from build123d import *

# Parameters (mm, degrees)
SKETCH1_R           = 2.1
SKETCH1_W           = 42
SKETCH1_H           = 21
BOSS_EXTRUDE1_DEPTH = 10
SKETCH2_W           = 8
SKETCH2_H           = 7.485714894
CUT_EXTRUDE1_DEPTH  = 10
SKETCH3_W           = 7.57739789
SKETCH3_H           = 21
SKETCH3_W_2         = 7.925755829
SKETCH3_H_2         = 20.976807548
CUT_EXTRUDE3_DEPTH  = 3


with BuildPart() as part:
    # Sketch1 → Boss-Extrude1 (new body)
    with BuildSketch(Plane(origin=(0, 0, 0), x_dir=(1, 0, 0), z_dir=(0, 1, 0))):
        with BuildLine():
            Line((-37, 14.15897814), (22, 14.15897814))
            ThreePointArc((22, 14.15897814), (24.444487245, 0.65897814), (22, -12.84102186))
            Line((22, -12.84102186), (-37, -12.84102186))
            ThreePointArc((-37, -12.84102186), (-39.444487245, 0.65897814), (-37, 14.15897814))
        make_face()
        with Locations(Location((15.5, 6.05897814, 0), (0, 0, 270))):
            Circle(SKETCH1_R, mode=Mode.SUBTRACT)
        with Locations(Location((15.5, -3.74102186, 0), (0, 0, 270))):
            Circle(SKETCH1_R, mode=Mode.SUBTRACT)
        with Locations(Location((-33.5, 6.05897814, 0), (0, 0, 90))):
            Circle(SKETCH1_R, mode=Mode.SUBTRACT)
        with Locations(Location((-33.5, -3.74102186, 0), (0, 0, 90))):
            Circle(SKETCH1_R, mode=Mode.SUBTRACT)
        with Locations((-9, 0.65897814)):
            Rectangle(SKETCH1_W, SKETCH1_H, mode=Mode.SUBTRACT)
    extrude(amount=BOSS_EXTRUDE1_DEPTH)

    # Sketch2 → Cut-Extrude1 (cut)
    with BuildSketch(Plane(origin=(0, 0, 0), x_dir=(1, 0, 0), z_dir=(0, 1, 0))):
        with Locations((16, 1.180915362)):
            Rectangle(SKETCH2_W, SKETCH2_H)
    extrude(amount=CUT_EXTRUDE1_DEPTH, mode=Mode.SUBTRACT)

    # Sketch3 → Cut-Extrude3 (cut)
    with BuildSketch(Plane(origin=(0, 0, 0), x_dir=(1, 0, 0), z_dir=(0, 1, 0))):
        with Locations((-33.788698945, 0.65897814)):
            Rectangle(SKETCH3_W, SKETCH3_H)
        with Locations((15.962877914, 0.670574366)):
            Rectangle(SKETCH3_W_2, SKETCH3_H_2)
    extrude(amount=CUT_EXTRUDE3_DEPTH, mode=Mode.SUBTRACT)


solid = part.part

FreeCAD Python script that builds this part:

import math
import FreeCAD as App
import Part
import Sketcher
Q = App.Units.Quantity


def add_polygon(sketch, points):
    """Adds a closed chain of lines whose ends are joined by coincident constraints."""
    first, n = sketch.GeometryCount, len(points)
    for a, b in zip(points, points[1:] + points[:1]):
        sketch.addGeometry(Part.LineSegment(App.Vector(*a, 0), App.Vector(*b, 0)), False)
    for i in range(n):
        sketch.addConstraint(Sketcher.Constraint("Coincident", first + i, 2, first + (i + 1) % n, 1))

doc = App.newDocument("Part")
params = doc.addObject("Spreadsheet::Sheet", "Params")
for row, (alias, value) in enumerate([
    ("sketch1_diameter", "4.2 mm"),
    ("sketch1_radius", "38.5 mm"),
    ("sketch1_width", "59 mm"),
    ("sketch1_width2", "42 mm"),
    ("sketch1_height", "21 mm"),
    ("pad1_length", "10 mm"),
    ("sketch2_width", "8 mm"),
    ("pocket1_length", "10 mm"),
    ("sketch3_height", "21 mm"),
    ("pocket2_length", "3 mm"),
], start=1):
    params.set(f"A{row}", alias)
    params.set(f"B{row}", "=" + value)
    params.setAlias(f"B{row}", alias)

body = doc.addObject("PartDesign::Body", "Body")

# Sketch on XZ plane
sketch1 = doc.addObject("Sketcher::SketchObject", "Sketch")
body.addObject(sketch1)
sketch1.AttachmentSupport = (doc.XZ_Plane, [""])
sketch1.MapMode = "FlatFace"
sketch1.addGeometry(Part.LineSegment(App.Vector(22, -14.2, 0), App.Vector(-37, -14.2, 0)), False)  # 0
sketch1.addGeometry(Part.ArcOfCircle(Part.Circle(App.Vector(-0.9, -0.7, 0), App.Vector(0, 0, 1), 38.5), math.radians(159), math.radians(201)), False)  # 1
sketch1.addGeometry(Part.LineSegment(App.Vector(-37, 12.8, 0), App.Vector(22, 12.8, 0)), False)  # 2
sketch1.addGeometry(Part.ArcOfCircle(Part.Circle(App.Vector(-14.1, -0.7, 0), App.Vector(0, 0, 1), 38.5), math.radians(-21), math.radians(21)), False)  # 3
sketch1.addGeometry(Part.Circle(App.Vector(15.5, 3.7, 0), App.Vector(0, 0, 1), 2.1), False)  # 4
sketch1.addGeometry(Part.Circle(App.Vector(-33.5, 3.7, 0), App.Vector(0, 0, 1), 2.1), False)  # 5
sketch1.addGeometry(Part.Circle(App.Vector(15.5, -6.1, 0), App.Vector(0, 0, 1), 2.1), False)  # 6
add_polygon(sketch1, [(-30, 9.8), (-30, -11.2), (12, -11.2), (12, 9.8)])  # lines 7-10
sketch1.addGeometry(Part.Circle(App.Vector(-33.5, -6.1, 0), App.Vector(0, 0, 1), 2.1), False)  # 11
sketch1.addConstraint(Sketcher.Constraint("Coincident", 0, 2, 1, 2))
sketch1.addConstraint(Sketcher.Constraint("Coincident", 1, 1, 2, 1))
sketch1.addConstraint(Sketcher.Constraint("Coincident", 2, 2, 3, 2))
sketch1.addConstraint(Sketcher.Constraint("Coincident", 3, 1, 0, 1))
sketch1.addConstraint(Sketcher.Constraint("Horizontal", 0))
sketch1.addConstraint(Sketcher.Constraint("Horizontal", 2))
sketch1.addConstraint(Sketcher.Constraint("Vertical", 7))
sketch1.addConstraint(Sketcher.Constraint("Horizontal", 8))
sketch1.addConstraint(Sketcher.Constraint("Vertical", 9))
sketch1.addConstraint(Sketcher.Constraint("Horizontal", 10))
sketch1.addConstraint(Sketcher.Constraint("Equal", 1, 3))
sketch1.addConstraint(Sketcher.Constraint("Equal", 4, 5))
sketch1.addConstraint(Sketcher.Constraint("Equal", 5, 6))
sketch1.addConstraint(Sketcher.Constraint("Equal", 6, 11))
sketch1.addConstraint(Sketcher.Constraint("Horizontal", 1, 3, 3, 3))
sketch1.addConstraint(Sketcher.Constraint("Horizontal", 4, 3, 5, 3))
sketch1.addConstraint(Sketcher.Constraint("Horizontal", 6, 3, 11, 3))
sketch1.addConstraint(Sketcher.Constraint("Vertical", 4, 3, 6, 3))
sketch1.addConstraint(Sketcher.Constraint("Vertical", 5, 3, 11, 3))
sketch1.addConstraint(Sketcher.Constraint("Vertical", 0, 2, 1, 1))
sketch1.addConstraint(Sketcher.Constraint("Diameter", 4, Q("4.2 mm")))
sketch1.addConstraint(Sketcher.Constraint("Radius", 1, Q("38.5 mm")))
sketch1.addConstraint(Sketcher.Constraint("DistanceX", 0, 2, 0, 1, Q("59 mm")))
sketch1.addConstraint(Sketcher.Constraint("DistanceX", 8, 1, 8, 2, Q("42 mm")))
sketch1.addConstraint(Sketcher.Constraint("DistanceY", 7, 2, 7, 1, Q("21 mm")))
sketch1.addConstraint(Sketcher.Constraint("DistanceX", 0, 2, -1, 1, Q("37 mm")))
sketch1.addConstraint(Sketcher.Constraint("DistanceX", 7, 2, -1, 1, Q("30 mm")))
sketch1.addConstraint(Sketcher.Constraint("DistanceX", 5, 3, 4, 3, Q("49 mm")))
sketch1.addConstraint(Sketcher.Constraint("DistanceY", 0, 2, 1, 1, Q("27 mm")))
sketch1.addConstraint(Sketcher.Constraint("DistanceY", 0, 2, 7, 2, Q("3 mm")))
sketch1.addConstraint(Sketcher.Constraint("DistanceX", -1, 1, 4, 3, Q("15.5 mm")))
sketch1.addConstraint(Sketcher.Constraint("DistanceY", 1, 3, 4, 3, Q("4.4 mm")))
sketch1.addConstraint(Sketcher.Constraint("DistanceY", 6, 3, 4, 3, Q("9.8 mm")))
sketch1.addConstraint(Sketcher.Constraint("DistanceY", 1, 3, -1, 1, Q("0.658978 mm")))
sketch1.setExpression("Constraints[24]", "Params.sketch1_diameter")
sketch1.setExpression("Constraints[25]", "Params.sketch1_radius")
sketch1.setExpression("Constraints[26]", "Params.sketch1_width")
sketch1.setExpression("Constraints[27]", "Params.sketch1_width2")
sketch1.setExpression("Constraints[28]", "Params.sketch1_height")
pad1 = doc.addObject("PartDesign::Pad", "Pad")
body.addObject(pad1)
pad1.Profile = sketch1
pad1.setExpression("Length", "Params.pad1_length")
pad1.Reversed = True

# Sketch on XZ plane
sketch2 = doc.addObject("Sketcher::SketchObject", "Sketch001")
body.addObject(sketch2)
sketch2.AttachmentSupport = (doc.XZ_Plane, [""])
sketch2.MapMode = "FlatFace"
add_polygon(sketch2, [(12, -5), (12, 3), (20, 3), (20, -5)])  # lines 0-3
sketch2.addConstraint(Sketcher.Constraint("Vertical", 0))
sketch2.addConstraint(Sketcher.Constraint("Horizontal", 1))
sketch2.addConstraint(Sketcher.Constraint("Vertical", 2))
sketch2.addConstraint(Sketcher.Constraint("Horizontal", 3))
sketch2.addConstraint(Sketcher.Constraint("DistanceX", 1, 1, 1, 2, Q("8 mm")))
sketch2.addConstraint(Sketcher.Constraint("DistanceX", -1, 1, 0, 2, Q("12 mm")))
sketch2.addConstraint(Sketcher.Constraint("DistanceY", 0, 1, 0, 2, Q("7.485715 mm")))
sketch2.addConstraint(Sketcher.Constraint("DistanceY", -1, 1, 0, 2, Q("2.561942 mm")))
sketch2.setExpression("Constraints[8]", "Params.sketch2_width")
pocket1 = doc.addObject("PartDesign::Pocket", "Pocket")
body.addObject(pocket1)
pocket1.Profile = sketch2
pocket1.setExpression("Length", "Params.pocket1_length")

# Sketch on XZ plane
sketch3 = doc.addObject("Sketcher::SketchObject", "Sketch002")
body.addObject(sketch3)
sketch3.AttachmentSupport = (doc.XZ_Plane, [""])
sketch3.MapMode = "FlatFace"
add_polygon(sketch3, [(-38, -11), (-38, 10), (-30, 10), (-30, -11)])  # lines 0-3
add_polygon(sketch3, [(12, -11), (12, 10), (20, 10), (20, -11)])  # lines 4-7
sketch3.addConstraint(Sketcher.Constraint("Vertical", 0))
sketch3.addConstraint(Sketcher.Constraint("Horizontal", 1))
sketch3.addConstraint(Sketcher.Constraint("Vertical", 2))
sketch3.addConstraint(Sketcher.Constraint("Horizontal", 3))
sketch3.addConstraint(Sketcher.Constraint("Vertical", 4))
sketch3.addConstraint(Sketcher.Constraint("Horizontal", 5))
sketch3.addConstraint(Sketcher.Constraint("Vertical", 6))
sketch3.addConstraint(Sketcher.Constraint("Horizontal", 7))
sketch3.addConstraint(Sketcher.Constraint("Horizontal", 3, 2, 6, 2))
sketch3.addConstraint(Sketcher.Constraint("DistanceY", 0, 1, 0, 2, Q("21 mm")))
sketch3.addConstraint(Sketcher.Constraint("DistanceX", 1, 2, -1, 1, Q("30 mm")))
sketch3.addConstraint(Sketcher.Constraint("DistanceX", -1, 1, 4, 2, Q("12 mm")))
sketch3.addConstraint(Sketcher.Constraint("DistanceX", 1, 1, 1, 2, Q("7.577398 mm")))
sketch3.addConstraint(Sketcher.Constraint("DistanceX", 5, 1, 5, 2, Q("7.925756 mm")))
sketch3.addConstraint(Sketcher.Constraint("DistanceY", 4, 1, 4, 2, Q("20.976808 mm")))
sketch3.addConstraint(Sketcher.Constraint("DistanceY", -1, 1, 0, 2, Q("9.841022 mm")))
sketch3.setExpression("Constraints[17]", "Params.sketch3_height")
pocket2 = doc.addObject("PartDesign::Pocket", "Pocket001")
body.addObject(pocket2)
pocket2.Profile = sketch3
pocket2.setExpression("Length", "Params.pocket2_length")

doc.recompute()
